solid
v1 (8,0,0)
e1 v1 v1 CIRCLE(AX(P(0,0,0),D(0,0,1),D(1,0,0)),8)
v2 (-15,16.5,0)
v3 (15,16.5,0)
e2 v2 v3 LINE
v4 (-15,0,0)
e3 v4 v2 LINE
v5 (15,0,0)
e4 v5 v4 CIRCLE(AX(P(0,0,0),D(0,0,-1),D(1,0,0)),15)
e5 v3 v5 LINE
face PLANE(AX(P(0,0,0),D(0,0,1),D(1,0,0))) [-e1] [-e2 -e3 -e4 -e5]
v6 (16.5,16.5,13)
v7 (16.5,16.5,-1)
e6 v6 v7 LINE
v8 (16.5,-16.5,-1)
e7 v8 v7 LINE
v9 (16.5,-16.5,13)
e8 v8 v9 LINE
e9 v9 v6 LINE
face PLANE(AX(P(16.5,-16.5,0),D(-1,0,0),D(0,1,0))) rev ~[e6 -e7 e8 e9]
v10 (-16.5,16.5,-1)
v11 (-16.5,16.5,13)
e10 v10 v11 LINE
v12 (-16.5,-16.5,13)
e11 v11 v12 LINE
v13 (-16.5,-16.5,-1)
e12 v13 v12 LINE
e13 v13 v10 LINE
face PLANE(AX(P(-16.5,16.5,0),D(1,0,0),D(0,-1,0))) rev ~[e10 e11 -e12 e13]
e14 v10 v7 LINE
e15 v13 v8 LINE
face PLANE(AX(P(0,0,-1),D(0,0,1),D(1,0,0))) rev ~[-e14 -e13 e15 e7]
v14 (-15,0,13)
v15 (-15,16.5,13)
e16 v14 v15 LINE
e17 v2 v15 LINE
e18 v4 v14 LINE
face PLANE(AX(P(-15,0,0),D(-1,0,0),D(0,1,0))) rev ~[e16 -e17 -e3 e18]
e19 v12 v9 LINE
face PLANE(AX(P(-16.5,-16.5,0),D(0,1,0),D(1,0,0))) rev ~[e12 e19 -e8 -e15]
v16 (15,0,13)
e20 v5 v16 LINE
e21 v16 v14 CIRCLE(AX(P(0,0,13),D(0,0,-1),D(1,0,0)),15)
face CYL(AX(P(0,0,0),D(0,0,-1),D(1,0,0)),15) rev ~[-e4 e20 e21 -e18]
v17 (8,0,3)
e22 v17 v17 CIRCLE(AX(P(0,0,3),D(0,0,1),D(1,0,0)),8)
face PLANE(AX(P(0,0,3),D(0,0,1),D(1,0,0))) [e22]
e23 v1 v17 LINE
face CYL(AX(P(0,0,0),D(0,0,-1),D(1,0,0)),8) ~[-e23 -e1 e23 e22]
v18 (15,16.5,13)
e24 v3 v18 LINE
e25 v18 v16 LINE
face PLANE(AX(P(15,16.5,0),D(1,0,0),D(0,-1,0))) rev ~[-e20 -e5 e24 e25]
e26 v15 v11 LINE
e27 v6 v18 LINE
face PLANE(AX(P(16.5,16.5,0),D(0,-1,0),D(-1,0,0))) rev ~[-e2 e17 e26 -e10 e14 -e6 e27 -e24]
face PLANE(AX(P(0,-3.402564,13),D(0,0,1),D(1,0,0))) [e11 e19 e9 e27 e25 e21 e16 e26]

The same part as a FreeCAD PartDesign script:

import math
import FreeCAD as App
import Part
import Sketcher
Q = App.Units.Quantity

doc = App.newDocument("Part")
body = doc.addObject("PartDesign::Body", "Body")

sketch1 = body.newObject("Sketcher::SketchObject", "Sketch")
sketch1.AttachmentSupport = (doc.getObject("XY_Plane"), [""])
sketch1.MapMode = "FlatFace"
sketch1.addGeometry(Part.LineSegment(App.Vector(-16, 16, 0), App.Vector(-16, -16, 0)), False)
sketch1.addGeometry(Part.LineSegment(App.Vector(-16, -16, 0), App.Vector(16, -16, 0)), False)
sketch1.addGeometry(Part.LineSegment(App.Vector(16, -16, 0), App.Vector(16, 16, 0)), False)
sketch1.addGeometry(Part.LineSegment(App.Vector(16, 16, 0), App.Vector(-16, 16, 0)), False)
sketch1.addConstraint(Sketcher.Constraint("Coincident", 0, 2, 1, 1))
sketch1.addConstraint(Sketcher.Constraint("Coincident", 1, 2, 2, 1))
sketch1.addConstraint(Sketcher.Constraint("Coincident", 2, 2, 3, 1))
sketch1.addConstraint(Sketcher.Constraint("Coincident", 3, 2, 0, 1))
sketch1.addConstraint(Sketcher.Constraint("Vertical", 0))
sketch1.addConstraint(Sketcher.Constraint("Horizontal", 1))
sketch1.addConstraint(Sketcher.Constraint("Vertical", 2))
sketch1.addConstraint(Sketcher.Constraint("Horizontal", 3))
sketch1.addConstraint(Sketcher.Constraint("Symmetric", 0, 2, 2, 2, -1, 1))
sketch1.addConstraint(Sketcher.Constraint("Equal", 3, 0))
sketch1.addConstraint(Sketcher.Constraint("DistanceX", 1, 1, 1, 2, Q("33 mm")))
pad1 = body.newObject("PartDesign::Pad", "Pad")
pad1.Profile = sketch1
pad1.Length = 1
pad1.Reversed = True

sketch2 = body.newObject("Sketcher::SketchObject", "Sketch001")
sketch2.AttachmentSupport = (doc.getObject("XY_Plane"), [""])
sketch2.MapMode = "FlatFace"
sketch2.addGeometry(Part.Circle(App.Vector(0, 0, 0), App.Vector(0, 0, 1), 8), False)
sketch2.addConstraint(Sketcher.Constraint("Coincident", 0, 3, -1, 1))
sketch2.addConstraint(Sketcher.Constraint("Diameter", 0, Q("16 mm")))
pad2 = body.newObject("PartDesign::Pad", "Pad001")
pad2.Profile = sketch2
pad2.Length = 3

sketch3 = body.newObject("Sketcher::SketchObject", "Sketch002")
sketch3.AttachmentSupport = (doc.getObject("XY_Plane"), [""])
sketch3.MapMode = "FlatFace"
sketch3.addGeometry(Part.ArcOfCircle(Part.Circle(App.Vector(0, 0, 0), App.Vector(0, 0, 1), 15), math.radians(180), math.radians(360)), False)
sketch3.addGeometry(Part.LineSegment(App.Vector(-15, 0, 0), App.Vector(-15, 16.5, 0)), False)
sketch3.addGeometry(Part.LineSegment(App.Vector(-15, 16.5, 0), App.Vector(-16.5, 16.5, 0)), False)
sketch3.addGeometry(Part.LineSegment(App.Vector(-16.5, 16.5, 0), App.Vector(-16.5, -16.5, 0)), False)
sketch3.addGeometry(Part.LineSegment(App.Vector(-16.5, -16.5, 0), App.Vector(16.5, -16.5, 0)), False)
sketch3.addGeometry(Part.LineSegment(App.Vector(16.5, -16.5, 0), App.Vector(16.5, 16.5, 0)), False)
sketch3.addGeometry(Part.LineSegment(App.Vector(16.5, 16.5, 0), App.Vector(15, 16.5, 0)), False)
sketch3.addGeometry(Part.LineSegment(App.Vector(15, 16.5, 0), App.Vector(15, 0, 0)), False)
sketch3.addConstraint(Sketcher.Constraint("Tangent", 0, 1, 1, 1))
sketch3.addConstraint(Sketcher.Constraint("Coincident", 1, 2, 2, 1))
sketch3.addConstraint(Sketcher.Constraint("Coincident", 2, 2, 3, 1))
sketch3.addConstraint(Sketcher.Constraint("Coincident", 3, 2, 4, 1))
sketch3.addConstraint(Sketcher.Constraint("Coincident", 4, 2, 5, 1))
sketch3.addConstraint(Sketcher.Constraint("Coincident", 5, 2, 6, 1))
sketch3.addConstraint(Sketcher.Constraint("Coincident", 6, 2, 7, 1))
sketch3.addConstraint(Sketcher.Constraint("Tangent", 7, 2, 0, 2))
sketch3.addConstraint(Sketcher.Constraint("Vertical", 1))
sketch3.addConstraint(Sketcher.Constraint("Horizontal", 2))
sketch3.addConstraint(Sketcher.Constraint("Vertical", 3))
sketch3.addConstraint(Sketcher.Constraint("Horizontal", 4))
sketch3.addConstraint(Sketcher.Constraint("Vertical", 5))
sketch3.addConstraint(Sketcher.Constraint("Horizontal", 6))
sketch3.addConstraint(Sketcher.Constraint("Vertical", 7))
sketch3.addConstraint(Sketcher.Constraint("Coincident", 0, 3, -1, 1))
sketch3.addConstraint(Sketcher.Constraint("Symmetric", 2, 2, 4, 2, -1, 1))
sketch3.addConstraint(Sketcher.Constraint("Horizontal", 2, 2, 5, 2))
sketch3.addConstraint(Sketcher.Constraint("Equal", 4, 3))
sketch3.addConstraint(Sketcher.Constraint("Radius", 0, Q("15 mm")))
sketch3.addConstraint(Sketcher.Constraint("DistanceX", 4, 1, 4, 2, Q("33 mm")))
pad3 = body.newObject("PartDesign::Pad", "Pad002")
pad3.Profile = sketch3
pad3.Length = 13

doc.recompute()
